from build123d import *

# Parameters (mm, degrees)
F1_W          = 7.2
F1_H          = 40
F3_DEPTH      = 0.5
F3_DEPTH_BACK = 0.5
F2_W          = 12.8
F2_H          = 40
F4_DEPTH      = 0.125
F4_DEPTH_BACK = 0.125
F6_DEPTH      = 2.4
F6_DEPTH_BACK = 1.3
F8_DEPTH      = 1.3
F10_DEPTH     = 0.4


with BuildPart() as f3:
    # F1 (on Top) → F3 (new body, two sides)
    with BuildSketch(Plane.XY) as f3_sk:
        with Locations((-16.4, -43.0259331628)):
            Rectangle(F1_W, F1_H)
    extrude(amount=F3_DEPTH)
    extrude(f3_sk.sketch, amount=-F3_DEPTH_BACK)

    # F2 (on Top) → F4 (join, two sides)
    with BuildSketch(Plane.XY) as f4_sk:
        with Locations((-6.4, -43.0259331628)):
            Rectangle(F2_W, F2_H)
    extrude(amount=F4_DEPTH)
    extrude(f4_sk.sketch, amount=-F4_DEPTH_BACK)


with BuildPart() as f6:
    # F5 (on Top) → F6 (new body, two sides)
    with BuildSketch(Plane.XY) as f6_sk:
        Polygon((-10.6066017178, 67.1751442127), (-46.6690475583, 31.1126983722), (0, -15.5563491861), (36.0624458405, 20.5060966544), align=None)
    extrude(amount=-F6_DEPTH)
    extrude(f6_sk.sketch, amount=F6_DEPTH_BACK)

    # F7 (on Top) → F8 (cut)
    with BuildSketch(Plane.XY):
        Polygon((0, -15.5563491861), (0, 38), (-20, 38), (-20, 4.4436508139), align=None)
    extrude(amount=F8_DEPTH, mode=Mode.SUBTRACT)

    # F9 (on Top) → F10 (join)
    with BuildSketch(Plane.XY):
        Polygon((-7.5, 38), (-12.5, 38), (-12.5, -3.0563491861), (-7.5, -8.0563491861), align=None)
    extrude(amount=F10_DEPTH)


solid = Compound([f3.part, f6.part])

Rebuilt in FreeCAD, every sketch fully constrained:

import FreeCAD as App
import Part
import Sketcher
Q = App.Units.Quantity


def add_polygon(sketch, points):
    """Adds a closed chain of lines whose ends are joined by coincident constraints."""
    first, n = sketch.GeometryCount, len(points)
    for a, b in zip(points, points[1:] + points[:1]):
        sketch.addGeometry(Part.LineSegment(App.Vector(*a, 0), App.Vector(*b, 0)), False)
    for i in range(n):
        sketch.addConstraint(Sketcher.Constraint("Coincident", first + i, 2, first + (i + 1) % n, 1))

doc = App.newDocument("Part")
body = doc.addObject("PartDesign::Body", "Body")

sketch1 = body.newObject("Sketcher::SketchObject", "Sketch")
sketch1.AttachmentSupport = (doc.getObject("XY_Plane"), [""])
sketch1.MapMode = "FlatFace"
add_polygon(sketch1, [(-20, -23.025933), (-20, -63.025933), (-12.8, -63.025933), (-12.8, -23.025933)])
sketch1.addConstraint(Sketcher.Constraint("Vertical", 0))
sketch1.addConstraint(Sketcher.Constraint("Horizontal", 1))
sketch1.addConstraint(Sketcher.Constraint("Vertical", 2))
sketch1.addConstraint(Sketcher.Constraint("Horizontal", 3))
sketch1.addConstraint(Sketcher.Constraint("DistanceY", 0, 2, 0, 1, Q("40 mm")))
sketch1.addConstraint(Sketcher.Constraint("DistanceX", 1, 1, 1, 2, Q("7.2 mm")))
sketch1.addConstraint(Sketcher.Constraint("DistanceX", 0, 2, -1, 1, Q("20 mm")))
sketch1.addConstraint(Sketcher.Constraint("DistanceY", 0, 2, -1, 1, Q("63.025933 mm")))
pad1 = body.newObject("PartDesign::Pad", "Pad")
pad1.Profile = sketch1
pad1.Type = "TwoLengths"
pad1.Length = 0.5
pad1.Length2 = 0.5

sketch2 = body.newObject("Sketcher::SketchObject", "Sketch001")
sketch2.AttachmentSupport = (doc.getObject("XY_Plane"), [""])
sketch2.MapMode = "FlatFace"
add_polygon(sketch2, [(-12.8, -23.025933), (-12.8, -63.025933), (0, -63.025933), (0, -23.025933)])
sketch2.addConstraint(Sketcher.Constraint("Vertical", 0))
sketch2.addConstraint(Sketcher.Constraint("Horizontal", 1))
sketch2.addConstraint(Sketcher.Constraint("Vertical", 2))
sketch2.addConstraint(Sketcher.Constraint("Horizontal", 3))
sketch2.addConstraint(Sketcher.Constraint("PointOnObject", 1, 2, -2))
sketch2.addConstraint(Sketcher.Constraint("DistanceY", 0, 2, 0, 1, Q("40 mm")))
sketch2.addConstraint(Sketcher.Constraint("DistanceX", 1, 1, 1, 2, Q("12.8 mm")))
sketch2.addConstraint(Sketcher.Constraint("DistanceY", 0, 2, -1, 1, Q("63.025933 mm")))
pad2 = body.newObject("PartDesign::Pad", "Pad001")
pad2.Profile = sketch2
pad2.Type = "TwoLengths"
pad2.Length = 0.125
pad2.Length2 = 0.125
body2 = doc.addObject("PartDesign::Body", "Body001")

sketch3 = body2.newObject("Sketcher::SketchObject", "Sketch002")
sketch3.AttachmentSupport = (doc.getObject("XY_Plane001"), [""])
sketch3.MapMode = "FlatFace"
add_polygon(sketch3, [(-10.606602, 67.175144), (-46.669048, 31.112698), (0, -15.556349), (36.062446, 20.506097)])
sketch3.addConstraint(Sketcher.Constraint("PointOnObject", 1, 2, -2))
sketch3.addConstraint(Sketcher.Constraint("Perpendicular", 0, 1))
sketch3.addConstraint(Sketcher.Constraint("Perpendicular", 1, 2))
sketch3.addConstraint(Sketcher.Constraint("Perpendicular", 2, 3))
sketch3.addConstraint(Sketcher.Constraint("Angle", 0, Q("-135 deg")))
sketch3.addConstraint(Sketcher.Constraint("Distance", 0, Q("51 mm")))
sketch3.addConstraint(Sketcher.Constraint("Distance", 1, Q("66 mm")))
sketch3.addConstraint(Sketcher.Constraint("DistanceY", -1, 1, 0, 2, Q("31.112698 mm")))
pad3 = body2.newObject("PartDesign::Pad", "Pad002")
pad3.Profile = sketch3
pad3.Type = "TwoLengths"
pad3.Length = 2.4
pad3.Length2 = 1.3
pad3.Reversed = True

sketch4 = body2.newObject("Sketcher::SketchObject", "Sketch003")
sketch4.AttachmentSupport = (doc.getObject("XY_Plane001"), [""])
sketch4.MapMode = "FlatFace"
add_polygon(sketch4, [(0, -15.556349), (0, 38), (-20, 38), (-20, 4.443651)])
sketch4.addConstraint(Sketcher.Constraint("Vertical", 0))
sketch4.addConstraint(Sketcher.Constraint("Horizontal", 1))
sketch4.addConstraint(Sketcher.Constraint("Vertical", 2))
sketch4.addConstraint(Sketcher.Constraint("PointOnObject", 0, 2, -2))
sketch4.addConstraint(Sketcher.Constraint("DistanceX", 1, 2, 1, 1, Q("20 mm")))
sketch4.addConstraint(Sketcher.Constraint("Angle", 3, Q("-45 deg")))
sketch4.addConstraint(Sketcher.Constraint("DistanceY", -1, 1, 0, 2, Q("38 mm")))
sketch4.addConstraint(Sketcher.Constraint("DistanceY", 0, 1, 0, 2, Q("53.556349 mm")))
pocket1 = body2.newObject("PartDesign::Pocket", "Pocket")
pocket1.Profile = sketch4
pocket1.Length = 1.3
pocket1.Reversed = True

sketch5 = body2.newObject("Sketcher::SketchObject", "Sketch004")
sketch5.AttachmentSupport = (doc.getObject("XY_Plane001"), [""])
sketch5.MapMode = "FlatFace"
add_polygon(sketch5, [(-7.5, 38), (-12.5, 38), (-12.5, -3.056349), (-7.5, -8.056349)])
sketch5.addConstraint(Sketcher.Constraint("Horizontal", 0))
sketch5.addConstraint(Sketcher.Constraint("Vertical", 1))
sketch5.addConstraint(Sketcher.Constraint("Vertical", 3))
sketch5.addConstraint(Sketcher.Constraint("DistanceX", 0, 2, 0, 1, Q("5 mm")))
sketch5.addConstraint(Sketcher.Constraint("Angle", 2, Q("-45 deg")))
sketch5.addConstraint(Sketcher.Constraint("DistanceY", -1, 1, 0, 2, Q("38 mm")))
sketch5.addConstraint(Sketcher.Constraint("DistanceX", 0, 2, -1, 1, Q("12.5 mm")))
sketch5.addConstraint(Sketcher.Constraint("DistanceY", 1, 2, 1, 1, Q("41.056349 mm")))
pad4 = body2.newObject("PartDesign::Pad", "Pad003")
pad4.Profile = sketch5
pad4.Length = 0.4

doc.recompute()
